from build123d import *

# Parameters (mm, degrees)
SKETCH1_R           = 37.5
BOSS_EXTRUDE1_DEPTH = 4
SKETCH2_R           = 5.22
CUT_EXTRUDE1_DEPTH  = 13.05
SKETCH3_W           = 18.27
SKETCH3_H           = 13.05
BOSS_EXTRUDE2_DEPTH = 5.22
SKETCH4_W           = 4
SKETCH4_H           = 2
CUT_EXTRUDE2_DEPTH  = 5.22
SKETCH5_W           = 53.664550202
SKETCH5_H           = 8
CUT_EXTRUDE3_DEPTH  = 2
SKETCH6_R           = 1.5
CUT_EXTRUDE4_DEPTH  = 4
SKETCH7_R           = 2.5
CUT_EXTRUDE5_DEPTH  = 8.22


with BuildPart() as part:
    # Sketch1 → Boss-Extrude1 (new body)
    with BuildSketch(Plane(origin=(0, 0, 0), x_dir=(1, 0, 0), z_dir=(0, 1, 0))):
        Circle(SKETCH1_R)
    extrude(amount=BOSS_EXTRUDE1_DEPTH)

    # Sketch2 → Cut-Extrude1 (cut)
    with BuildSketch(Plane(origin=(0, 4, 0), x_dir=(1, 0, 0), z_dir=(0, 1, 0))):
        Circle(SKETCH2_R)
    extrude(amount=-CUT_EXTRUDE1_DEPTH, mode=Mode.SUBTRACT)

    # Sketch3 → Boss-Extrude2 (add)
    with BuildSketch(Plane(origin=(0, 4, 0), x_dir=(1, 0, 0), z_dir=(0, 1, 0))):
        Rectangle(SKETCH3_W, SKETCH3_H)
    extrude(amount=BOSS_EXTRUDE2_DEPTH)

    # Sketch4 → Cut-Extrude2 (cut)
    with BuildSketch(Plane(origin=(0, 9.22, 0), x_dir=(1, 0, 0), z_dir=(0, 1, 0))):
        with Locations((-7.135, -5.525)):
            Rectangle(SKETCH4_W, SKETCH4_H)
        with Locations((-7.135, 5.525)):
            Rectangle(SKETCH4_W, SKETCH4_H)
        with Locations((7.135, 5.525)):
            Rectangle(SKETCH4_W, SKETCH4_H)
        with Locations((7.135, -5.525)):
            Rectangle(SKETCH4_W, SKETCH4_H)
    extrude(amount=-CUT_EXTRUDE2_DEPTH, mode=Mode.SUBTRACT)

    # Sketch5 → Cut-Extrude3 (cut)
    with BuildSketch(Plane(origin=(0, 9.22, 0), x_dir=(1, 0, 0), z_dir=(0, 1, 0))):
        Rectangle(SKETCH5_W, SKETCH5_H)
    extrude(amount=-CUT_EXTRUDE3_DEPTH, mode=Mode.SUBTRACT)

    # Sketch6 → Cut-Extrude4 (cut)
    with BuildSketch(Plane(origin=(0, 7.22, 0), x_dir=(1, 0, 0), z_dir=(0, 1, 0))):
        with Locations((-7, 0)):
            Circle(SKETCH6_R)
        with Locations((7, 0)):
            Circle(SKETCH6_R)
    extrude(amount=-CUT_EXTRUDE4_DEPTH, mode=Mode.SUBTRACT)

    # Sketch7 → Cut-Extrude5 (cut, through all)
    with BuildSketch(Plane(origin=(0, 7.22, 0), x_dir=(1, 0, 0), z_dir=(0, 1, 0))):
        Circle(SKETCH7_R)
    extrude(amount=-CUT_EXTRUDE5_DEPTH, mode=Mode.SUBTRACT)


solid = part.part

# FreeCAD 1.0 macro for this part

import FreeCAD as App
import Part
import Sketcher

V = App.Vector
Q = App.Units.Quantity


def add_polygon(sketch, points):
    """Adds a closed chain of lines whose ends are joined by coincident constraints."""
    first, n = sketch.GeometryCount, len(points)
    for a, b in zip(points, points[1:] + points[:1]):
        sketch.addGeometry(Part.LineSegment(App.Vector(*a, 0), App.Vector(*b, 0)), False)
    for i in range(n):
        sketch.addConstraint(Sketcher.Constraint("Coincident", first + i, 2, first + (i + 1) % n, 1))

doc = App.newDocument("Part")
body = doc.addObject("PartDesign::Body", "Body")

# Sketch on XZ plane
sketch1 = body.newObject("Sketcher::SketchObject", "Sketch")
sketch1.AttachmentSupport = (doc.getObject("XZ_Plane"), [""])
sketch1.MapMode = "FlatFace"
sketch1.addGeometry(Part.Circle(V(0, 0, 0), V(0, 0, 1), 38), False)
sketch1.addConstraint([
    Sketcher.Constraint("Coincident", 0, 3, -1, 1),
    Sketcher.Constraint("Diameter", 0, Q("75 mm")),
])
pad1 = body.newObject("PartDesign::Pad", "Pad")
pad1.Profile = sketch1
pad1.Length = 4
pad1.Reversed = True

# Sketch on XZ plane
sketch2 = body.newObject("Sketcher::SketchObject", "Sketch001")
sketch2.AttachmentSupport = (doc.getObject("XZ_Plane"), [""])
sketch2.MapMode = "FlatFace"
sketch2.AttachmentOffset = App.Placement(V(0, 0, -4), App.Rotation())
sketch2.addGeometry(Part.Circle(V(0, 0, 0), V(0, 0, 1), 5), False)
sketch2.addConstraint([
    Sketcher.Constraint("Coincident", 0, 3, -1, 1),
    Sketcher.Constraint("Diameter", 0, Q("10.44 mm")),
])
pocket1 = body.newObject("PartDesign::Pocket", "Pocket")
pocket1.Profile = sketch2
pocket1.Length = 13.05
pocket1.Reversed = True

# Sketch on XZ plane
sketch3 = body.newObject("Sketcher::SketchObject", "Sketch002")
sketch3.AttachmentSupport = (doc.getObject("XZ_Plane"), [""])
sketch3.MapMode = "FlatFace"
sketch3.AttachmentOffset = App.Placement(V(0, 0, -4), App.Rotation())
add_polygon(sketch3, [(-9, -7), (-9, 7), (9, 7), (9, -7)])  # lines 0-3
sketch3.addConstraint([
    Sketcher.Constraint("Vertical", 0),
    Sketcher.Constraint("Horizontal", 1),
    Sketcher.Constraint("Vertical", 2),
    Sketcher.Constraint("Horizontal", 3),
    Sketcher.Constraint("Symmetric", 0, 2, 2, 2, -1, 1),
    Sketcher.Constraint("DistanceX", 1, 1, 1, 2, Q("18.27 mm")),
    Sketcher.Constraint("DistanceY", 0, 1, 0, 2, Q("13.05 mm")),
])
pad2 = body.newObject("PartDesign::Pad", "Pad001")
pad2.Profile = sketch3
pad2.Length = 5.22
pad2.Reversed = True

# Sketch on XZ plane
sketch4 = body.newObject("Sketcher::SketchObject", "Sketch003")
sketch4.AttachmentSupport = (doc.getObject("XZ_Plane"), [""])
sketch4.MapMode = "FlatFace"
sketch4.AttachmentOffset = App.Placement(V(0, 0, -9.22), App.Rotation())
add_polygon(sketch4, [(-9.1, 4.5), (-9.1, 6.5), (-5.1, 6.5), (-5.1, 4.5)])  # lines 0-3
add_polygon(sketch4, [(-9.1, -6.5), (-9.1, -4.5), (-5.1, -4.5), (-5.1, -6.5)])  # lines 4-7
add_polygon(sketch4, [(5.1, -6.5), (5.1, -4.5), (9.1, -4.5), (9.1, -6.5)])  # lines 8-11
add_polygon(sketch4, [(5.1, 4.5), (5.1, 6.5), (9.1, 6.5), (9.1, 4.5)])  # lines 12-15
sketch4.addConstraint([
    Sketcher.Constraint("Vertical", 0),
    Sketcher.Constraint("Horizontal", 1),
    Sketcher.Constraint("Vertical", 2),
    Sketcher.Constraint("Horizontal", 3),
    Sketcher.Constraint("Vertical", 4),
    Sketcher.Constraint("Horizontal", 5),
    Sketcher.Constraint("Vertical", 6),
    Sketcher.Constraint("Horizontal", 7),
    Sketcher.Constraint("Vertical", 8),
    Sketcher.Constraint("Horizontal", 9),
    Sketcher.Constraint("Vertical", 10),
    Sketcher.Constraint("Horizontal", 11),
    Sketcher.Constraint("Vertical", 12),
    Sketcher.Constraint("Horizontal", 13),
    Sketcher.Constraint("Vertical", 14),
    Sketcher.Constraint("Horizontal", 15),
    Sketcher.Constraint("Symmetric", 2, 2, 8, 2, -1, 1),
    Sketcher.Constraint("Symmetric", 0, 2, 10, 2, -1, 1),
    Sketcher.Constraint("Symmetric", 6, 2, 12, 2, -1, 1),
    Sketcher.Constraint("Symmetric", 4, 2, 14, 2, -1, 1),
    Sketcher.Constraint("Symmetric", 5, 2, 8, 2, -2),
    Sketcher.Constraint("Symmetric", 7, 2, 10, 2, -2),
    Sketcher.Constraint("DistanceX", 1, 1, 1, 2, Q("4 mm")),
    Sketcher.Constraint("DistanceY", 0, 1, 0, 2, Q("2 mm")),
    Sketcher.Constraint("DistanceY", 4, 2, 3, 2, Q("9.05 mm")),
    Sketcher.Constraint("DistanceX", 5, 2, 8, 2, Q("10.27 mm")),
])
pocket2 = body.newObject("PartDesign::Pocket", "Pocket001")
pocket2.Profile = sketch4
pocket2.Length = 5.22
pocket2.Reversed = True

# Sketch on XZ plane
sketch5 = body.newObject("Sketcher::SketchObject", "Sketch004")
sketch5.AttachmentSupport = (doc.getObject("XZ_Plane"), [""])
sketch5.MapMode = "FlatFace"
sketch5.AttachmentOffset = App.Placement(V(0, 0, -9.22), App.Rotation())
add_polygon(sketch5, [(-27, -4), (-27, 4), (27, 4), (27, -4)])  # lines 0-3
sketch5.addConstraint([
    Sketcher.Constraint("Vertical", 0),
    Sketcher.Constraint("Horizontal", 1),
    Sketcher.Constraint("Vertical", 2),
    Sketcher.Constraint("Horizontal", 3),
    Sketcher.Constraint("Symmetric", 0, 2, 2, 2, -1, 1),
    Sketcher.Constraint("DistanceY", 0, 1, 0, 2, Q("8 mm")),
    Sketcher.Constraint("DistanceX", 1, 1, 1, 2, Q("53.66455 mm")),
])
pocket3 = body.newObject("PartDesign::Pocket", "Pocket002")
pocket3.Profile = sketch5
pocket3.Length = 2
pocket3.Reversed = True

# Sketch on XZ plane
sketch6 = body.newObject("Sketcher::SketchObject", "Sketch005")
sketch6.AttachmentSupport = (doc.getObject("XZ_Plane"), [""])
sketch6.MapMode = "FlatFace"
sketch6.AttachmentOffset = App.Placement(V(0, 0, -7.22), App.Rotation())
sketch6.addGeometry([
    Part.Circle(V(-7, 0, 0), V(0, 0, 1), 1.5),
    Part.Circle(V(7, 0, 0), V(0, 0, 1), 1.5),
], False)
sketch6.addConstraint([
    Sketcher.Constraint("Equal", 0, 1),
    Sketcher.Constraint("Symmetric", 0, 3, 1, 3, -1, 1),
    Sketcher.Constraint("PointOnObject", 0, 3, -1),
    Sketcher.Constraint("Diameter", 0, Q("3 mm")),
    Sketcher.Constraint("DistanceX", 0, 3, -1, 1, Q("7 mm")),
])
pocket4 = body.newObject("PartDesign::Pocket", "Pocket003")
pocket4.Profile = sketch6
pocket4.Length = 4
pocket4.Reversed = True

# Sketch on XZ plane
sketch7 = body.newObject("Sketcher::SketchObject", "Sketch006")
sketch7.AttachmentSupport = (doc.getObject("XZ_Plane"), [""])
sketch7.MapMode = "FlatFace"
sketch7.AttachmentOffset = App.Placement(V(0, 0, -7.22), App.Rotation())
sketch7.addGeometry(Part.Circle(V(0, 0, 0), V(0, 0, 1), 2.5), False)
sketch7.addConstraint([
    Sketcher.Constraint("Coincident", 0, 3, -1, 1),
    Sketcher.Constraint("Diameter", 0, Q("5 mm")),
])
pocket5 = body.newObject("PartDesign::Pocket", "Pocket004")
pocket5.Profile = sketch7
pocket5.Type = "ThroughAll"
pocket5.Reversed = True

doc.recompute()
